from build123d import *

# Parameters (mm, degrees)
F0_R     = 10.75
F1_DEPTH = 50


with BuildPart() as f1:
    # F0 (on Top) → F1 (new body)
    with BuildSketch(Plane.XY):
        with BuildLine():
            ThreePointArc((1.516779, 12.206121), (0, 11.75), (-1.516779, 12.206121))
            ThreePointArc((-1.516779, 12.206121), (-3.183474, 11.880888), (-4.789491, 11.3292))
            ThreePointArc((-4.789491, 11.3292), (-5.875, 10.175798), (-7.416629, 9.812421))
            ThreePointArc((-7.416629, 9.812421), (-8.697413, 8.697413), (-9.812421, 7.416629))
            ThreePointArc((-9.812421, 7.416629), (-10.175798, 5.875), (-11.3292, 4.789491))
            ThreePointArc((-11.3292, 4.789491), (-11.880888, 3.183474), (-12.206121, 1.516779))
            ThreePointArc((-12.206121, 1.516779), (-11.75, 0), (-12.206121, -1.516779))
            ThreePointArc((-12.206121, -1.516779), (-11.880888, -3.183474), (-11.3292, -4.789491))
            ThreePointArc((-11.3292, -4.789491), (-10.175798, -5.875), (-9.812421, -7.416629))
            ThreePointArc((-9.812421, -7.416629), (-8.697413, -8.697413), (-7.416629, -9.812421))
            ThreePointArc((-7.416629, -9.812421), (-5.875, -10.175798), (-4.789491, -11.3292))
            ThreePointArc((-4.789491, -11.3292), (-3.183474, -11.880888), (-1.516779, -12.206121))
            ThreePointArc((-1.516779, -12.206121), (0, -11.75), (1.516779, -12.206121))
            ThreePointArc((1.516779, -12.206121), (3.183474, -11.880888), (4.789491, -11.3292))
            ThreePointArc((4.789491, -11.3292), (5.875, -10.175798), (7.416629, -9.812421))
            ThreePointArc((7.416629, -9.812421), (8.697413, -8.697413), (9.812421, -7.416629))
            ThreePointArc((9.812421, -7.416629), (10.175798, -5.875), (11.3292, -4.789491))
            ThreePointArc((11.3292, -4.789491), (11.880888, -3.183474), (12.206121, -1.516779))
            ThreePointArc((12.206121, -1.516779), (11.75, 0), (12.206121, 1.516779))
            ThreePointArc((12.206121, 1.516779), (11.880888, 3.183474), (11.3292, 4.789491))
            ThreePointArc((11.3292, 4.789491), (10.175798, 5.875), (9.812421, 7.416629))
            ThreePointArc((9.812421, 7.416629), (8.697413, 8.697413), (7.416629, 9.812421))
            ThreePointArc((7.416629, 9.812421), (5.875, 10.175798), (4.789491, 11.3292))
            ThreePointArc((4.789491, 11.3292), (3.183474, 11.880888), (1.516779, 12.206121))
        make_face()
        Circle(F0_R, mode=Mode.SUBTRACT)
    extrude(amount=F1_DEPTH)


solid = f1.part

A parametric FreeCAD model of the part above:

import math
import FreeCAD as App
import Part
import Sketcher
from FreeCAD import Vector

doc = App.newDocument("Part")
params = doc.addObject("Spreadsheet::Sheet", "Params")
for row, (alias, value) in enumerate([
    ("sketch1_diameter", "21.5 mm"),
    ("sketch1_radius", "2.749999 mm"),
    ("pad1_length", "50 mm"),
], start=1):
    params.set(f"A{row}", alias)
    params.set(f"B{row}", "=" + value)
    params.setAlias(f"B{row}", alias)

body = doc.addObject("PartDesign::Body", "Body")

# Sketch on XY plane
sketch1 = body.newObject("Sketcher::SketchObject", "Sketch")
sketch1.AttachmentSupport = (doc.getObject("XY_Plane"), [""])
sketch1.MapMode = "FlatFace"
sketch1.addGeometry([
    Part.ArcOfCircle(Part.Circle(Vector(0, 14.499999, 0), Vector(0, 0, 1), 2.749999), math.radians(-123.473836), math.radians(-56.526164)),  # 0
    Part.ArcOfCircle(Part.Circle(Vector(-0.000003, 0.000016, 0), Vector(0, 0, 1), 12.299984), math.radians(97.083478), math.radians(112.916537)),  # 1
    Part.ArcOfCircle(Part.Circle(Vector(-7.249999, 12.557368, 0), Vector(0, 0, 1), 2.75), math.radians(-93.473826), math.radians(-26.526169)),  # 2
    Part.ArcOfCircle(Part.Circle(Vector(0.000018, -0.000018, 0), Vector(0, 0, 1), 12.300024), math.radians(127.083495), math.radians(142.916505)),  # 3
    Part.ArcOfCircle(Part.Circle(Vector(-12.557368, 7.249999, 0), Vector(0, 0, 1), 2.75), math.radians(-63.473831), math.radians(3.473826)),  # 4
    Part.ArcOfCircle(Part.Circle(Vector(-0.000016, 0.000003, 0), Vector(0, 0, 1), 12.299984), math.radians(157.083463), math.radians(172.916522)),  # 5
    Part.ArcOfCircle(Part.Circle(Vector(-14.499999, 0, 0), Vector(0, 0, 1), 2.749999), math.radians(-33.473836), math.radians(33.473836)),  # 6
    Part.ArcOfCircle(Part.Circle(Vector(-0.000016, -0.000003, 0), Vector(0, 0, 1), 12.299984), math.radians(-172.916522), math.radians(-157.083463)),  # 7
    Part.ArcOfCircle(Part.Circle(Vector(-12.557368, -7.249999, 0), Vector(0, 0, 1), 2.75), math.radians(-3.473826), math.radians(63.473831)),  # 8
    Part.ArcOfCircle(Part.Circle(Vector(0.000018, 0.000018, 0), Vector(0, 0, 1), 12.300024), math.radians(-142.916505), math.radians(-127.083495)),  # 9
    Part.ArcOfCircle(Part.Circle(Vector(-7.249999, -12.557368, 0), Vector(0, 0, 1), 2.75), math.radians(26.526169), math.radians(93.473826)),  # 10
    Part.ArcOfCircle(Part.Circle(Vector(-0.000003, -0.000016, 0), Vector(0, 0, 1), 12.299984), math.radians(-112.916537), math.radians(-97.083478)),  # 11
    Part.ArcOfCircle(Part.Circle(Vector(0, -14.499999, 0), Vector(0, 0, 1), 2.749999), math.radians(56.526164), math.radians(123.473836)),  # 12
    Part.ArcOfCircle(Part.Circle(Vector(0.000003, -0.000016, 0), Vector(0, 0, 1), 12.299984), math.radians(-82.916522), math.radians(-67.083463)),  # 13
    Part.ArcOfCircle(Part.Circle(Vector(7.249999, -12.557368, 0), Vector(0, 0, 1), 2.75), math.radians(86.526174), math.radians(153.473831)),  # 14
    Part.ArcOfCircle(Part.Circle(Vector(-0.000018, 0.000018, 0), Vector(0, 0, 1), 12.300024), math.radians(-52.916505), math.radians(-37.083495)),  # 15
    Part.ArcOfCircle(Part.Circle(Vector(12.557368, -7.249999, 0), Vector(0, 0, 1), 2.75), math.radians(116.526169), math.radians(183.473826)),  # 16
    Part.ArcOfCircle(Part.Circle(Vector(0.000016, -0.000003, 0), Vector(0, 0, 1), 12.299984), math.radians(-22.916537), math.radians(-7.083478)),  # 17
    Part.ArcOfCircle(Part.Circle(Vector(14.499999, 0, 0), Vector(0, 0, 1), 2.749999), math.radians(146.526164), math.radians(213.473836)),  # 18
    Part.ArcOfCircle(Part.Circle(Vector(0.000016, 0.000003, 0), Vector(0, 0, 1), 12.299984), math.radians(7.083478), math.radians(22.916537)),  # 19
    Part.ArcOfCircle(Part.Circle(Vector(12.557368, 7.249999, 0), Vector(0, 0, 1), 2.75), math.radians(176.526174), math.radians(243.473831)),  # 20
    Part.ArcOfCircle(Part.Circle(Vector(-0.000018, -0.000018, 0), Vector(0, 0, 1), 12.300024), math.radians(37.083495), math.radians(52.916505)),  # 21
    Part.ArcOfCircle(Part.Circle(Vector(7.249999, 12.557368, 0), Vector(0, 0, 1), 2.75), math.radians(-153.473831), math.radians(-86.526174)),  # 22
    Part.ArcOfCircle(Part.Circle(Vector(0.000003, 0.000016, 0), Vector(0, 0, 1), 12.299984), math.radians(67.083463), math.radians(82.916522)),  # 23
    Part.Circle(Vector(0, 0, 0), Vector(0, 0, 1), 10.75),  # 24
], False)
sketch1.addConstraint([
    Sketcher.Constraint("Coincident", 0, 1, 1, 1),
    Sketcher.Constraint("Coincident", 1, 2, 2, 2),
    Sketcher.Constraint("Coincident", 2, 1, 3, 1),
    Sketcher.Constraint("Coincident", 3, 2, 4, 2),
    Sketcher.Constraint("Coincident", 4, 1, 5, 1),
    Sketcher.Constraint("Coincident", 5, 2, 6, 2),
    Sketcher.Constraint("Coincident", 6, 1, 7, 1),
    Sketcher.Constraint("Coincident", 7, 2, 8, 2),
    Sketcher.Constraint("Coincident", 8, 1, 9, 1),
    Sketcher.Constraint("Coincident", 9, 2, 10, 2),
    Sketcher.Constraint("Coincident", 10, 1, 11, 1),
    Sketcher.Constraint("Coincident", 11, 2, 12, 2),
    Sketcher.Constraint("Coincident", 12, 1, 13, 1),
    Sketcher.Constraint("Coincident", 13, 2, 14, 2),
    Sketcher.Constraint("Coincident", 14, 1, 15, 1),
    Sketcher.Constraint("Coincident", 15, 2, 16, 2),
    Sketcher.Constraint("Coincident", 16, 1, 17, 1),
    Sketcher.Constraint("Coincident", 17, 2, 18, 2),
    Sketcher.Constraint("Coincident", 18, 1, 19, 1),
    Sketcher.Constraint("Coincident", 19, 2, 20, 2),
    Sketcher.Constraint("Coincident", 20, 1, 21, 1),
    Sketcher.Constraint("Coincident", 21, 2, 22, 2),
    Sketcher.Constraint("Coincident", 22, 1, 23, 1),
    Sketcher.Constraint("Coincident", 23, 2, 0, 2),
    Sketcher.Constraint("Coincident", 24, 3, -1, 1),
    Sketcher.Constraint("Coincident", 7, 3, 5, 3),
    Sketcher.Constraint("Coincident", 13, 3, 11, 3),
    Sketcher.Constraint("Coincident", 19, 3, 17, 3),
    Sketcher.Constraint("Coincident", 23, 3, 1, 3),
    Sketcher.Constraint("Equal", 0, 2),
    Sketcher.Constraint("Equal", 2, 4),
    Sketcher.Constraint("Equal", 1, 5),
    Sketcher.Constraint("Equal", 4, 6),
    Sketcher.Constraint("Equal", 5, 7),
    Sketcher.Constraint("Equal", 6, 8),
    Sketcher.Constraint("Equal", 3, 9),
    Sketcher.Constraint("Equal", 8, 10),
    Sketcher.Constraint("Equal", 7, 11),
    Sketcher.Constraint("Equal", 10, 12),
    Sketcher.Constraint("Equal", 11, 13),
    Sketcher.Constraint("Equal", 12, 14),
    Sketcher.Constraint("Equal", 9, 15),
    Sketcher.Constraint("Equal", 14, 16),
    Sketcher.Constraint("Equal", 13, 17),
    Sketcher.Constraint("Equal", 16, 18),
    Sketcher.Constraint("Equal", 17, 19),
    Sketcher.Constraint("Equal", 18, 20),
    Sketcher.Constraint("Equal", 15, 21),
    Sketcher.Constraint("Equal", 20, 22),
    Sketcher.Constraint("Equal", 19, 23),
    Sketcher.Constraint("Symmetric", 1, 3, 11, 3, -1, 1),
    Sketcher.Constraint("Symmetric", 0, 3, 12, 3, -1, 1),
    Sketcher.Constraint("Symmetric", 2, 3, 14, 3, -1, 1),
    Sketcher.Constraint("Symmetric", 3, 3, 15, 3, -1, 1),
    Sketcher.Constraint("Symmetric", 4, 3, 16, 3, -1, 1),
    Sketcher.Constraint("Symmetric", 5, 3, 17, 3, -1, 1),
    Sketcher.Constraint("Symmetric", 6, 3, 18, 3, -1, 1),
    Sketcher.Constraint("Symmetric", 8, 3, 20, 3, -1, 1),
    Sketcher.Constraint("Symmetric", 9, 3, 21, 3, -1, 1),
    Sketcher.Constraint("Symmetric", 10, 3, 22, 3, -1, 1),
    Sketcher.Constraint("Symmetric", 10, 3, 14, 3, -2),
    Sketcher.Constraint("Symmetric", 9, 3, 15, 3, -2),
    Sketcher.Constraint("Symmetric", 8, 3, 16, 3, -2),
    Sketcher.Constraint("Symmetric", 11, 2, 12, 1, -2),
    Sketcher.Constraint("Symmetric", 6, 1, 17, 2, -2),
    Sketcher.Constraint("Horizontal", 1, 3, 9, 3),
    Sketcher.Constraint("Vertical", 7, 3, 15, 3),
    Sketcher.Constraint("Diameter", 24, 21.5),
    Sketcher.Constraint("Radius", 0, 2.749999),
    Sketcher.Constraint("DistanceY", -1, 1, 0, 3, 14.499999),
    Sketcher.Constraint("DistanceX", 6, 3, -1, 1, 14.499999),
    Sketcher.Constraint("DistanceY", 8, 3, 4, 3, 14.499999),
    Sketcher.Constraint("DistanceX", 10, 3, 14, 3, 14.499999),
    Sketcher.Constraint("Radius", 1, 12.299984),
    Sketcher.Constraint("Radius", 3, 12.300024),
    Sketcher.Constraint("DistanceY", -1, 1, 1, 2, 11.3292),
    Sketcher.Constraint("DistanceX", 4, 1, -1, 1, 11.3292),
    Sketcher.Constraint("DistanceY", 2, 1, 0, 1, 2.3937),
    Sketcher.Constraint("DistanceX", 5, 2, 3, 2, 2.3937),
])
sketch1.setExpression("Constraints[67]", "Params.sketch1_diameter")
sketch1.setExpression("Constraints[68]", "Params.sketch1_radius")
pad1 = body.newObject("PartDesign::Pad", "Pad")
pad1.Profile = sketch1
pad1.setExpression("Length", "Params.pad1_length")

doc.recompute()
